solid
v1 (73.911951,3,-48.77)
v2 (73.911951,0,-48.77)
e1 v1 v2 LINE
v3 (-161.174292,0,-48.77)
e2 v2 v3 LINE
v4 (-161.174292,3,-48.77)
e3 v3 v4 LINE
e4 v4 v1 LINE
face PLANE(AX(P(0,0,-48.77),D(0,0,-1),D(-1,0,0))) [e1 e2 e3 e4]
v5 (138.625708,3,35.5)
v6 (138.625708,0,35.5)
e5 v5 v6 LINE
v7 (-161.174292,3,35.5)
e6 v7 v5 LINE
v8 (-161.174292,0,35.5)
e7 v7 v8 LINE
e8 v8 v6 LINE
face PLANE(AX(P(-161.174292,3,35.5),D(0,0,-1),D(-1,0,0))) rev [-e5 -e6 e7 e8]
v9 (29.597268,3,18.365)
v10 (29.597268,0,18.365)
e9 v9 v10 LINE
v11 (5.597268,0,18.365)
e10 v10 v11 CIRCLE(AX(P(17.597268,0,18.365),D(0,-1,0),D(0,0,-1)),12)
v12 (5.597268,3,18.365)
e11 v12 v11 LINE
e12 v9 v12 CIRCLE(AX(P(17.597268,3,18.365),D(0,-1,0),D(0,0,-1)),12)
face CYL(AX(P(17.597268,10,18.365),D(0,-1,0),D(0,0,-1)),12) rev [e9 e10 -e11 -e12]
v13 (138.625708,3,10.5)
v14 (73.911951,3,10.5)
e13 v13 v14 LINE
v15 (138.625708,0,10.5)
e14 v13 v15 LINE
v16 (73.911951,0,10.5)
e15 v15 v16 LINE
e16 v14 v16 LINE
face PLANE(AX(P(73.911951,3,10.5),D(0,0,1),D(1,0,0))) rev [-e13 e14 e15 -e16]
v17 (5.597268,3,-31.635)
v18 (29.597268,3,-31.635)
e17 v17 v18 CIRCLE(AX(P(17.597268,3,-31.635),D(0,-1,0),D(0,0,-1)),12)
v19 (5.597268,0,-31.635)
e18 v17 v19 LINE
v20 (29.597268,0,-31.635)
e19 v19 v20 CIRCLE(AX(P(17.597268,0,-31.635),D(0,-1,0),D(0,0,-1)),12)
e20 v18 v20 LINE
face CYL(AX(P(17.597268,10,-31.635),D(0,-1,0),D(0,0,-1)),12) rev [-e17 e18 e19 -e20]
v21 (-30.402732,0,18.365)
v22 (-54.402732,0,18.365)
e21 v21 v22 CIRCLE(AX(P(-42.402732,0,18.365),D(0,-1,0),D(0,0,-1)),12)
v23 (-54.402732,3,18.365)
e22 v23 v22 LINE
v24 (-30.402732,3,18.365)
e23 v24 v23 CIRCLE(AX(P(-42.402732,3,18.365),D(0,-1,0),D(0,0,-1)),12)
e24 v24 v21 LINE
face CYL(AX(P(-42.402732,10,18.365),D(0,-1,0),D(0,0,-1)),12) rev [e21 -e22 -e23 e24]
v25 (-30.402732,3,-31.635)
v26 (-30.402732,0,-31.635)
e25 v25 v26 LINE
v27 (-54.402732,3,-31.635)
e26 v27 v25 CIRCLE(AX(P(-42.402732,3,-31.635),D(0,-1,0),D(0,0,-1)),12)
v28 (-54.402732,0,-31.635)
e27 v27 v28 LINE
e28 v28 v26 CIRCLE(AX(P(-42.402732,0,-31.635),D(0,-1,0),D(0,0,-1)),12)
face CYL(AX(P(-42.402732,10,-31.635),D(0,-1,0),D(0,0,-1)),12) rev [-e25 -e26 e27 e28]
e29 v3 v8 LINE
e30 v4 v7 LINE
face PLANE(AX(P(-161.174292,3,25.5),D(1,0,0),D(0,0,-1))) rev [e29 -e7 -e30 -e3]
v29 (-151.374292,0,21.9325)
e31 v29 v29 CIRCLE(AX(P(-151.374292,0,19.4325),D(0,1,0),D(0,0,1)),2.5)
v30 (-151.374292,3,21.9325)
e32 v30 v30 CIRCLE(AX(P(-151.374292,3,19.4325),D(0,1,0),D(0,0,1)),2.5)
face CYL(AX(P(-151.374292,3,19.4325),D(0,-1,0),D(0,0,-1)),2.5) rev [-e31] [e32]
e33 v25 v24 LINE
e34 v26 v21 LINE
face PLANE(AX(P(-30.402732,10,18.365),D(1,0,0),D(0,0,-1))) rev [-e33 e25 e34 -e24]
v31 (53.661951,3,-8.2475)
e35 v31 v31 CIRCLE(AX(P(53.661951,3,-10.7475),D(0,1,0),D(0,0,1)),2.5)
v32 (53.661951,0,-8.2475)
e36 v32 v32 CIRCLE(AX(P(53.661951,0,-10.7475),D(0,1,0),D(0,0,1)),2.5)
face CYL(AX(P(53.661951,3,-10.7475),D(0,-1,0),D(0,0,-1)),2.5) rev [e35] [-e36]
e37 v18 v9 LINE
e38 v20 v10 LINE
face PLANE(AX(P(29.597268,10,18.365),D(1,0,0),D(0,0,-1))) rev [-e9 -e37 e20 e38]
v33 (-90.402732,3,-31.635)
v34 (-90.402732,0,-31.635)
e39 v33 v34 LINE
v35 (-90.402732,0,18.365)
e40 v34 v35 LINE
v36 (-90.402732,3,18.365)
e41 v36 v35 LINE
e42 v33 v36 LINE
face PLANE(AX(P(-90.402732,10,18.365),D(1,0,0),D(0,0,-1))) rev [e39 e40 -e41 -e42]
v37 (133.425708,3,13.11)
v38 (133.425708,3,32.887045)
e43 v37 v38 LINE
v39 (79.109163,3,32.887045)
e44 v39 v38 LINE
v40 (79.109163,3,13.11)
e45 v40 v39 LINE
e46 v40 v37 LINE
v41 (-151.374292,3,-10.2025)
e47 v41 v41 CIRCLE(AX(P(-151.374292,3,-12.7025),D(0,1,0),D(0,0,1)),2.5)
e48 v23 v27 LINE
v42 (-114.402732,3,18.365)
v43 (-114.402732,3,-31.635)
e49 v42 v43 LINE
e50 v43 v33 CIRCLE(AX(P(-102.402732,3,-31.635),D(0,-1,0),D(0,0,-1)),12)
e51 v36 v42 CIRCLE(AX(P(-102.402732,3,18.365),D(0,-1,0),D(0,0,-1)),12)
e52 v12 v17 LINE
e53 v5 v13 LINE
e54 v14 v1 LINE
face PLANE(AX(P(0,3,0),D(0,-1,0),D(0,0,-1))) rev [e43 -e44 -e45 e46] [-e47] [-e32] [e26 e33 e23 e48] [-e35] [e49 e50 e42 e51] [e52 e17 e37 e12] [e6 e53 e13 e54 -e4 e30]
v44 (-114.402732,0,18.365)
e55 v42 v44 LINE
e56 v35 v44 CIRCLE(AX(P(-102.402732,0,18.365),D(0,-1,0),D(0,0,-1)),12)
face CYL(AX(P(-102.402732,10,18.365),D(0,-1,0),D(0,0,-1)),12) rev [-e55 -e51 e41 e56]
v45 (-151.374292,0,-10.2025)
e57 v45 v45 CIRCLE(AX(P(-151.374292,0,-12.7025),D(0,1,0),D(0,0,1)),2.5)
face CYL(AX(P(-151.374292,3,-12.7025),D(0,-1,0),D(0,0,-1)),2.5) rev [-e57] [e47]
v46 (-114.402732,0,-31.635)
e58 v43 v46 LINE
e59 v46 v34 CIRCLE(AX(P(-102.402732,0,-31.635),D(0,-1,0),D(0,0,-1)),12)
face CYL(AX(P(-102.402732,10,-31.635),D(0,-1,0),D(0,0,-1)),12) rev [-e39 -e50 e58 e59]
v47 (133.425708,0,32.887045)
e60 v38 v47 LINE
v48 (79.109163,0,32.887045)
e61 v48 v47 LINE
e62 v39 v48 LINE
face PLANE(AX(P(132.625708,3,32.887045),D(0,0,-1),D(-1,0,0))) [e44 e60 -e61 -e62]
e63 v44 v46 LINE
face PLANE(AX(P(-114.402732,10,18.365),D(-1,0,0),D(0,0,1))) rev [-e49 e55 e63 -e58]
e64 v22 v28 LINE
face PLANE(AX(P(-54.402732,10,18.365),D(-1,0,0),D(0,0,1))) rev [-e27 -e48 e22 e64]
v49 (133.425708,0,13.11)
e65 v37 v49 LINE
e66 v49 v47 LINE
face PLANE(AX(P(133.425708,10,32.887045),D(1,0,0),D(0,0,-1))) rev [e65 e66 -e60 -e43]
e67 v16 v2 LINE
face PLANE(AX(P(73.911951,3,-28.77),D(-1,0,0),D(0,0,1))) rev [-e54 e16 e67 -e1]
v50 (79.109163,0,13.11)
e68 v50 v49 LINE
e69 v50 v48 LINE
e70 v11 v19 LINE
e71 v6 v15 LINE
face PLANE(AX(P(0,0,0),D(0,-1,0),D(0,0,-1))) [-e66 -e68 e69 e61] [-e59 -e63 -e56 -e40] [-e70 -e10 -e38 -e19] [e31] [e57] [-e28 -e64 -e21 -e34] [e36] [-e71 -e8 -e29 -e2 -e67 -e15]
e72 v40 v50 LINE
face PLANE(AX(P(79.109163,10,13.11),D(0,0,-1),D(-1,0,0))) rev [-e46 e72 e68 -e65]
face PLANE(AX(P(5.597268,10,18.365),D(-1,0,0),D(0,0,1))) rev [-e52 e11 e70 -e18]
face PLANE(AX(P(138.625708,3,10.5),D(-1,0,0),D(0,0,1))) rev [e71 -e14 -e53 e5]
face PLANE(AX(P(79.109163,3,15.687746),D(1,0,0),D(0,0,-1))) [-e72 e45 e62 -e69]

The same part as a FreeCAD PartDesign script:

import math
import FreeCAD as App
import Part
import Sketcher
from FreeCAD import Vector
Q = App.Units.Quantity

doc = App.newDocument("Part")
params = doc.addObject("Spreadsheet::Sheet", "Params")
for row, (alias, value) in enumerate([
    ("sketch1_diameter", "5 mm"),
    ("sketch1_height", "25 mm"),
    ("sketch1_width", "299.8 mm"),
    ("sketch1_height2", "39.27 mm"),
    ("pad1_length", "3 mm"),
    ("sketch2_radius", "7.5 mm"),
    ("sketch2_height", "30 mm"),
    ("sketch3_height", "3 mm"),
    ("pad2_length", "20 mm"),
    ("pocket2_length", "10 mm"),
    ("sketch5_radius", "12 mm"),
    ("sketch5_height", "50 mm"),
    ("pocket3_length", "10 mm"),
], start=1):
    params.set(f"A{row}", alias)
    params.set(f"B{row}", "=" + value)
    params.setAlias(f"B{row}", alias)

body = doc.addObject("PartDesign::Body", "Body")

sketch1 = doc.addObject("Sketcher::SketchObject", "Sketch")
body.addObject(sketch1)
sketch1.AttachmentSupport = (doc.XZ_Plane, [""])
sketch1.MapMode = "FlatFace"
sketch1.addGeometry([
    Part.LineSegment(Vector(-161.174292, 35.5, 0), Vector(138.625708, 35.5, 0)),
    Part.LineSegment(Vector(138.625708, 35.5, 0), Vector(138.625708, 10.5, 0)),
    Part.LineSegment(Vector(138.625708, 10.5, 0), Vector(73.911951, 10.5, 0)),
    Part.LineSegment(Vector(73.911951, 10.5, 0), Vector(73.911951, -28.77, 0)),
    Part.LineSegment(Vector(73.911951, -28.77, 0), Vector(-161.174292, -28.77, 0)),
    Part.LineSegment(Vector(-161.174292, -28.77, 0), Vector(-161.174292, 35.5, 0)),
    Part.Circle(Vector(-151.374292, 19.4325, 0), Vector(0, 0, 1), 2.5),
    Part.LineSegment(Vector(79.109163, 15.687746, 0), Vector(114.261516, 15.687746, 0)),
    Part.LineSegment(Vector(114.261516, 15.687746, 0), Vector(114.261516, 18.634239, 0)),
    Part.LineSegment(Vector(114.261516, 18.634239, 0), Vector(132.625708, 18.634239, 0)),
    Part.LineSegment(Vector(132.625708, 18.634239, 0), Vector(132.625708, 32.887045, 0)),
    Part.LineSegment(Vector(132.625708, 32.887045, 0), Vector(79.109163, 32.887045, 0)),
    Part.LineSegment(Vector(79.109163, 32.887045, 0), Vector(79.109163, 15.687746, 0)),
    Part.Circle(Vector(-151.374292, -12.7025, 0), Vector(0, 0, 1), 2.5),
    Part.Circle(Vector(53.661951, -10.7475, 0), Vector(0, 0, 1), 2.5),
], False)
sketch1.addConstraint([
    Sketcher.Constraint("Coincident", 0, 2, 1, 1),
    Sketcher.Constraint("Coincident", 1, 2, 2, 1),
    Sketcher.Constraint("Coincident", 2, 2, 3, 1),
    Sketcher.Constraint("Coincident", 3, 2, 4, 1),
    Sketcher.Constraint("Coincident", 4, 2, 5, 1),
    Sketcher.Constraint("Coincident", 5, 2, 0, 1),
    Sketcher.Constraint("Coincident", 7, 2, 8, 1),
    Sketcher.Constraint("Coincident", 8, 2, 9, 1),
    Sketcher.Constraint("Coincident", 9, 2, 10, 1),
    Sketcher.Constraint("Coincident", 10, 2, 11, 1),
    Sketcher.Constraint("Coincident", 11, 2, 12, 1),
    Sketcher.Constraint("Coincident", 12, 2, 7, 1),
    Sketcher.Constraint("Horizontal", 0),
    Sketcher.Constraint("Vertical", 1),
    Sketcher.Constraint("Horizontal", 2),
    Sketcher.Constraint("Vertical", 3),
    Sketcher.Constraint("Horizontal", 4),
    Sketcher.Constraint("Vertical", 5),
    Sketcher.Constraint("Horizontal", 7),
    Sketcher.Constraint("Vertical", 8),
    Sketcher.Constraint("Horizontal", 9),
    Sketcher.Constraint("Vertical", 10),
    Sketcher.Constraint("Horizontal", 11),
    Sketcher.Constraint("Vertical", 12),
    Sketcher.Constraint("Equal", 6, 13),
    Sketcher.Constraint("Equal", 13, 14),
    Sketcher.Constraint("Vertical", 6, 3, 13, 3),
    Sketcher.Constraint("Diameter", 6, Q("5 mm")),
    Sketcher.Constraint("DistanceY", 1, 2, 1, 1, Q("25 mm")),
    Sketcher.Constraint("DistanceX", 0, 1, 0, 2, Q("299.8 mm")),
    Sketcher.Constraint("DistanceX", 6, 3, 0, 2, Q("290 mm")),
    Sketcher.Constraint("DistanceX", 9, 2, 1, 2, Q("6 mm")),
    Sketcher.Constraint("DistanceY", 3, 2, 3, 1, Q("39.27 mm")),
    Sketcher.Constraint("DistanceY", -1, 1, 0, 2, Q("35.5 mm")),
    Sketcher.Constraint("DistanceY", 14, 3, 6, 3, Q("30.18 mm")),
    Sketcher.Constraint("DistanceX", 14, 3, 2, 2, Q("20.25 mm")),
    Sketcher.Constraint("DistanceY", 12, 2, 12, 1, Q("17.199299 mm")),
    Sketcher.Constraint("DistanceY", 13, 3, 6, 3, Q("32.135 mm")),
    Sketcher.Constraint("DistanceX", 9, 1, 9, 2, Q("18.364192 mm")),
    Sketcher.Constraint("DistanceY", -1, 1, 6, 3, Q("19.4325 mm")),
    Sketcher.Constraint("DistanceX", 2, 2, 2, 1, Q("64.713757 mm")),
    Sketcher.Constraint("DistanceX", 7, 1, 7, 2, Q("35.152352 mm")),
    Sketcher.Constraint("DistanceY", 8, 1, 8, 2, Q("2.946493 mm")),
    Sketcher.Constraint("DistanceX", -1, 1, 14, 3, Q("53.661951 mm")),
    Sketcher.Constraint("DistanceY", -1, 1, 8, 2, Q("18.634239 mm")),
])
sketch1.setExpression("Constraints[27]", "Params.sketch1_diameter")
sketch1.setExpression("Constraints[28]", "Params.sketch1_height")
sketch1.setExpression("Constraints[29]", "Params.sketch1_width")
sketch1.setExpression("Constraints[32]", "Params.sketch1_height2")
pad1 = doc.addObject("PartDesign::Pad", "Pad")
body.addObject(pad1)
pad1.Profile = sketch1
pad1.setExpression("Length", "Params.pad1_length")
pad1.Reversed = True

sketch2 = doc.addObject("Sketcher::SketchObject", "Sketch001")
body.addObject(sketch2)
sketch2.AttachmentSupport = (doc.XZ_Plane, [""])
sketch2.MapMode = "FlatFace"
sketch2.addGeometry([
    Part.LineSegment(Vector(7.64039, 18.365, 0), Vector(7.64039, -11.635, 0)),
    Part.ArcOfCircle(Part.Circle(Vector(15.14039, -11.635, 0), Vector(0, 0, 1), 7.5), math.radians(180), math.radians(360)),
    Part.LineSegment(Vector(22.64039, -11.635, 0), Vector(22.64039, 18.365, 0)),
    Part.ArcOfCircle(Part.Circle(Vector(15.14039, 18.365, 0), Vector(0, 0, 1), 7.5), math.radians(0), math.radians(180)),
    Part.LineSegment(Vector(-51.131171, 18.365, 0), Vector(-51.131171, -11.635, 0)),
    Part.ArcOfCircle(Part.Circle(Vector(-43.631171, -11.635, 0), Vector(0, 0, 1), 7.5), math.radians(180), math.radians(360)),
    Part.LineSegment(Vector(-36.131171, -11.635, 0), Vector(-36.131171, 18.365, 0)),
    Part.ArcOfCircle(Part.Circle(Vector(-43.631171, 18.365, 0), Vector(0, 0, 1), 7.5), math.radians(0), math.radians(180)),
    Part.LineSegment(Vector(-109.902732, 18.365, 0), Vector(-109.902732, -11.635, 0)),
    Part.ArcOfCircle(Part.Circle(Vector(-102.402732, -11.635, 0), Vector(0, 0, 1), 7.5), math.radians(180), math.radians(360)),
    Part.LineSegment(Vector(-94.902732, -11.635, 0), Vector(-94.902732, 18.365, 0)),
    Part.ArcOfCircle(Part.Circle(Vector(-102.402732, 18.365, 0), Vector(0, 0, 1), 7.5), math.radians(0), math.radians(180)),
], False)
sketch2.addConstraint([
    Sketcher.Constraint("Tangent", 0, 2, 1, 1),
    Sketcher.Constraint("Tangent", 1, 2, 2, 1),
    Sketcher.Constraint("Tangent", 2, 2, 3, 1),
    Sketcher.Constraint("Tangent", 3, 2, 0, 1),
    Sketcher.Constraint("Tangent", 4, 2, 5, 1),
    Sketcher.Constraint("Tangent", 5, 2, 6, 1),
    Sketcher.Constraint("Tangent", 6, 2, 7, 1),
    Sketcher.Constraint("Tangent", 7, 2, 4, 1),
    Sketcher.Constraint("Tangent", 8, 2, 9, 1),
    Sketcher.Constraint("Tangent", 9, 2, 10, 1),
    Sketcher.Constraint("Tangent", 10, 2, 11, 1),
    Sketcher.Constraint("Tangent", 11, 2, 8, 1),
    Sketcher.Constraint("Vertical", 0),
    Sketcher.Constraint("Vertical", 2),
    Sketcher.Constraint("Vertical", 4),
    Sketcher.Constraint("Vertical", 6),
    Sketcher.Constraint("Vertical", 8),
    Sketcher.Constraint("Vertical", 10),
    Sketcher.Constraint("Equal", 3, 5),
    Sketcher.Constraint("Equal", 7, 9),
    Sketcher.Constraint("Horizontal", 1, 3, 5, 3),
    Sketcher.Constraint("Horizontal", 3, 3, 7, 3),
    Sketcher.Constraint("Horizontal", 5, 3, 9, 3),
    Sketcher.Constraint("Horizontal", 7, 3, 11, 3),
    Sketcher.Constraint("Radius", 1, Q("7.5 mm")),
    Sketcher.Constraint("DistanceY", 0, 2, 0, 1, Q("30 mm")),
    Sketcher.Constraint("DistanceY", 1, 3, -1, 1, Q("11.635 mm")),
    Sketcher.Constraint("DistanceX", -1, 1, 1, 3, Q("15.14039 mm")),
    Sketcher.Constraint("DistanceX", 5, 3, -1, 1, Q("43.631171 mm")),
    Sketcher.Constraint("DistanceX", 9, 3, -1, 1, Q("102.402732 mm")),
])
sketch2.setExpression("Constraints[24]", "Params.sketch2_radius")
sketch2.setExpression("Constraints[25]", "Params.sketch2_height")
pocket1 = doc.addObject("PartDesign::Pocket", "Pocket")
body.addObject(pocket1)
pocket1.Profile = sketch2
pocket1.Type = "ThroughAll"

sketch3 = doc.addObject("Sketcher::SketchObject", "Sketch002")
body.addObject(sketch3)
sketch3.AttachmentSupport = (doc.XY_Plane, [""])
sketch3.MapMode = "FlatFace"
sketch3.AttachmentOffset = App.Placement(Vector(0, 0, -28.77), App.Rotation())
sketch3.addGeometry([
    Part.LineSegment(Vector(73.911951, 3, 0), Vector(73.911951, 0, 0)),
    Part.LineSegment(Vector(73.911951, 0, 0), Vector(-161.174292, 0, 0)),
    Part.LineSegment(Vector(-161.174292, 0, 0), Vector(-161.174292, 3, 0)),
    Part.LineSegment(Vector(-161.174292, 3, 0), Vector(73.911951, 3, 0)),
], False)
sketch3.addConstraint([
    Sketcher.Constraint("Coincident", 0, 2, 1, 1),
    Sketcher.Constraint("Coincident", 1, 2, 2, 1),
    Sketcher.Constraint("Coincident", 2, 2, 3, 1),
    Sketcher.Constraint("Coincident", 3, 2, 0, 1),
    Sketcher.Constraint("Vertical", 0),
    Sketcher.Constraint("Horizontal", 1),
    Sketcher.Constraint("Vertical", 2),
    Sketcher.Constraint("Horizontal", 3),
    Sketcher.Constraint("PointOnObject", 0, 2, -1),
    Sketcher.Constraint("DistanceY", 0, 2, 0, 1, Q("3 mm")),
    Sketcher.Constraint("DistanceX", 1, 2, 1, 1, Q("235.086243 mm")),
    Sketcher.Constraint("DistanceX", -1, 1, 0, 2, Q("73.911951 mm")),
])
sketch3.setExpression("Constraints[9]", "Params.sketch3_height")
pad2 = doc.addObject("PartDesign::Pad", "Pad001")
body.addObject(pad2)
pad2.Profile = sketch3
pad2.setExpression("Length", "Params.pad2_length")
pad2.Reversed = True

sketch4 = doc.addObject("Sketcher::SketchObject", "Sketch003")
body.addObject(sketch4)
sketch4.AttachmentSupport = (doc.XZ_Plane, [""])
sketch4.MapMode = "FlatFace"
sketch4.addGeometry([
    Part.LineSegment(Vector(79.109163, 32.887045, 0), Vector(79.109163, 13.11, 0)),
    Part.LineSegment(Vector(79.109163, 13.11, 0), Vector(133.425708, 13.11, 0)),
    Part.LineSegment(Vector(133.425708, 13.11, 0), Vector(133.425708, 32.887045, 0)),
    Part.LineSegment(Vector(133.425708, 32.887045, 0), Vector(79.109163, 32.887045, 0)),
], False)
sketch4.addConstraint([
    Sketcher.Constraint("Coincident", 0, 2, 1, 1),
    Sketcher.Constraint("Coincident", 1, 2, 2, 1),
    Sketcher.Constraint("Coincident", 2, 2, 3, 1),
    Sketcher.Constraint("Coincident", 3, 2, 0, 1),
    Sketcher.Constraint("Vertical", 0),
    Sketcher.Constraint("Horizontal", 1),
    Sketcher.Constraint("Vertical", 2),
    Sketcher.Constraint("Horizontal", 3),
    Sketcher.Constraint("DistanceY", -1, 1, 0, 2, Q("13.11 mm")),
    Sketcher.Constraint("DistanceX", 1, 1, 1, 2, Q("54.316544 mm")),
    Sketcher.Constraint("DistanceY", 0, 2, 0, 1, Q("19.777045 mm")),
    Sketcher.Constraint("DistanceX", -1, 1, 0, 2, Q("79.109163 mm")),
])
pocket2 = doc.addObject("PartDesign::Pocket", "Pocket001")
body.addObject(pocket2)
pocket2.Profile = sketch4
pocket2.setExpression("Length", "Params.pocket2_length")

sketch5 = doc.addObject("Sketcher::SketchObject", "Sketch004")
body.addObject(sketch5)
sketch5.AttachmentSupport = (doc.XZ_Plane, [""])
sketch5.MapMode = "FlatFace"
sketch5.addGeometry([
    Part.LineSegment(Vector(-90.402732, -31.635, 0), Vector(-90.402732, 18.365, 0)),
    Part.ArcOfCircle(Part.Circle(Vector(-102.402732, 18.365, 0), Vector(0, 0, 1), 12), math.radians(0), math.radians(180)),
    Part.LineSegment(Vector(-114.402732, 18.365, 0), Vector(-114.402732, -31.635, 0)),
    Part.ArcOfCircle(Part.Circle(Vector(-102.402732, -31.635, 0), Vector(0, 0, 1), 12), math.radians(180), math.radians(360)),
    Part.LineSegment(Vector(-30.402732, -31.635, 0), Vector(-30.402732, 18.365, 0)),
    Part.ArcOfCircle(Part.Circle(Vector(-42.402732, 18.365, 0), Vector(0, 0, 1), 12), math.radians(0), math.radians(180)),
    Part.LineSegment(Vector(-54.402732, 18.365, 0), Vector(-54.402732, -31.635, 0)),
    Part.ArcOfCircle(Part.Circle(Vector(-42.402732, -31.635, 0), Vector(0, 0, 1), 12), math.radians(180), math.radians(360)),
    Part.LineSegment(Vector(29.597268, -31.635, 0), Vector(29.597268, 18.365, 0)),
    Part.ArcOfCircle(Part.Circle(Vector(17.597268, 18.365, 0), Vector(0, 0, 1), 12), math.radians(0), math.radians(180)),
    Part.LineSegment(Vector(5.597268, 18.365, 0), Vector(5.597268, -31.635, 0)),
    Part.ArcOfCircle(Part.Circle(Vector(17.597268, -31.635, 0), Vector(0, 0, 1), 12), math.radians(180), math.radians(360)),
], False)
sketch5.addConstraint([
    Sketcher.Constraint("Tangent", 0, 2, 1, 1),
    Sketcher.Constraint("Tangent", 1, 2, 2, 1),
    Sketcher.Constraint("Tangent", 2, 2, 3, 1),
    Sketcher.Constraint("Tangent", 3, 2, 0, 1),
    Sketcher.Constraint("Tangent", 4, 2, 5, 1),
    Sketcher.Constraint("Tangent", 5, 2, 6, 1),
    Sketcher.Constraint("Tangent", 6, 2, 7, 1),
    Sketcher.Constraint("Tangent", 7, 2, 4, 1),
    Sketcher.Constraint("Tangent", 8, 2, 9, 1),
    Sketcher.Constraint("Tangent", 9, 2, 10, 1),
    Sketcher.Constraint("Tangent", 10, 2, 11, 1),
    Sketcher.Constraint("Tangent", 11, 2, 8, 1),
    Sketcher.Constraint("Vertical", 0),
    Sketcher.Constraint("Vertical", 2),
    Sketcher.Constraint("Vertical", 4),
    Sketcher.Constraint("Vertical", 6),
    Sketcher.Constraint("Vertical", 8),
    Sketcher.Constraint("Vertical", 10),
    Sketcher.Constraint("Equal", 3, 5),
    Sketcher.Constraint("Equal", 7, 9),
    Sketcher.Constraint("Horizontal", 1, 3, 5, 3),
    Sketcher.Constraint("Horizontal", 3, 3, 7, 3),
    Sketcher.Constraint("Horizontal", 5, 3, 9, 3),
    Sketcher.Constraint("Horizontal", 7, 3, 11, 3),
    Sketcher.Constraint("Radius", 1, Q("12 mm")),
    Sketcher.Constraint("DistanceY", 0, 1, 0, 2, Q("50 mm")),
    Sketcher.Constraint("DistanceX", 1, 3, 5, 3, Q("60 mm")),
    Sketcher.Constraint("DistanceX", 5, 3, 9, 3, Q("60 mm")),
    Sketcher.Constraint("DistanceY", -1, 1, 1, 3, Q("18.365 mm")),
    Sketcher.Constraint("DistanceX", 1, 3, -1, 1, Q("102.402732 mm")),
])
sketch5.setExpression("Constraints[24]", "Params.sketch5_radius")
sketch5.setExpression("Constraints[25]", "Params.sketch5_height")
pocket3 = doc.addObject("PartDesign::Pocket", "Pocket002")
body.addObject(pocket3)
pocket3.Profile = sketch5
pocket3.setExpression("Length", "Params.pocket3_length")

doc.recompute()
